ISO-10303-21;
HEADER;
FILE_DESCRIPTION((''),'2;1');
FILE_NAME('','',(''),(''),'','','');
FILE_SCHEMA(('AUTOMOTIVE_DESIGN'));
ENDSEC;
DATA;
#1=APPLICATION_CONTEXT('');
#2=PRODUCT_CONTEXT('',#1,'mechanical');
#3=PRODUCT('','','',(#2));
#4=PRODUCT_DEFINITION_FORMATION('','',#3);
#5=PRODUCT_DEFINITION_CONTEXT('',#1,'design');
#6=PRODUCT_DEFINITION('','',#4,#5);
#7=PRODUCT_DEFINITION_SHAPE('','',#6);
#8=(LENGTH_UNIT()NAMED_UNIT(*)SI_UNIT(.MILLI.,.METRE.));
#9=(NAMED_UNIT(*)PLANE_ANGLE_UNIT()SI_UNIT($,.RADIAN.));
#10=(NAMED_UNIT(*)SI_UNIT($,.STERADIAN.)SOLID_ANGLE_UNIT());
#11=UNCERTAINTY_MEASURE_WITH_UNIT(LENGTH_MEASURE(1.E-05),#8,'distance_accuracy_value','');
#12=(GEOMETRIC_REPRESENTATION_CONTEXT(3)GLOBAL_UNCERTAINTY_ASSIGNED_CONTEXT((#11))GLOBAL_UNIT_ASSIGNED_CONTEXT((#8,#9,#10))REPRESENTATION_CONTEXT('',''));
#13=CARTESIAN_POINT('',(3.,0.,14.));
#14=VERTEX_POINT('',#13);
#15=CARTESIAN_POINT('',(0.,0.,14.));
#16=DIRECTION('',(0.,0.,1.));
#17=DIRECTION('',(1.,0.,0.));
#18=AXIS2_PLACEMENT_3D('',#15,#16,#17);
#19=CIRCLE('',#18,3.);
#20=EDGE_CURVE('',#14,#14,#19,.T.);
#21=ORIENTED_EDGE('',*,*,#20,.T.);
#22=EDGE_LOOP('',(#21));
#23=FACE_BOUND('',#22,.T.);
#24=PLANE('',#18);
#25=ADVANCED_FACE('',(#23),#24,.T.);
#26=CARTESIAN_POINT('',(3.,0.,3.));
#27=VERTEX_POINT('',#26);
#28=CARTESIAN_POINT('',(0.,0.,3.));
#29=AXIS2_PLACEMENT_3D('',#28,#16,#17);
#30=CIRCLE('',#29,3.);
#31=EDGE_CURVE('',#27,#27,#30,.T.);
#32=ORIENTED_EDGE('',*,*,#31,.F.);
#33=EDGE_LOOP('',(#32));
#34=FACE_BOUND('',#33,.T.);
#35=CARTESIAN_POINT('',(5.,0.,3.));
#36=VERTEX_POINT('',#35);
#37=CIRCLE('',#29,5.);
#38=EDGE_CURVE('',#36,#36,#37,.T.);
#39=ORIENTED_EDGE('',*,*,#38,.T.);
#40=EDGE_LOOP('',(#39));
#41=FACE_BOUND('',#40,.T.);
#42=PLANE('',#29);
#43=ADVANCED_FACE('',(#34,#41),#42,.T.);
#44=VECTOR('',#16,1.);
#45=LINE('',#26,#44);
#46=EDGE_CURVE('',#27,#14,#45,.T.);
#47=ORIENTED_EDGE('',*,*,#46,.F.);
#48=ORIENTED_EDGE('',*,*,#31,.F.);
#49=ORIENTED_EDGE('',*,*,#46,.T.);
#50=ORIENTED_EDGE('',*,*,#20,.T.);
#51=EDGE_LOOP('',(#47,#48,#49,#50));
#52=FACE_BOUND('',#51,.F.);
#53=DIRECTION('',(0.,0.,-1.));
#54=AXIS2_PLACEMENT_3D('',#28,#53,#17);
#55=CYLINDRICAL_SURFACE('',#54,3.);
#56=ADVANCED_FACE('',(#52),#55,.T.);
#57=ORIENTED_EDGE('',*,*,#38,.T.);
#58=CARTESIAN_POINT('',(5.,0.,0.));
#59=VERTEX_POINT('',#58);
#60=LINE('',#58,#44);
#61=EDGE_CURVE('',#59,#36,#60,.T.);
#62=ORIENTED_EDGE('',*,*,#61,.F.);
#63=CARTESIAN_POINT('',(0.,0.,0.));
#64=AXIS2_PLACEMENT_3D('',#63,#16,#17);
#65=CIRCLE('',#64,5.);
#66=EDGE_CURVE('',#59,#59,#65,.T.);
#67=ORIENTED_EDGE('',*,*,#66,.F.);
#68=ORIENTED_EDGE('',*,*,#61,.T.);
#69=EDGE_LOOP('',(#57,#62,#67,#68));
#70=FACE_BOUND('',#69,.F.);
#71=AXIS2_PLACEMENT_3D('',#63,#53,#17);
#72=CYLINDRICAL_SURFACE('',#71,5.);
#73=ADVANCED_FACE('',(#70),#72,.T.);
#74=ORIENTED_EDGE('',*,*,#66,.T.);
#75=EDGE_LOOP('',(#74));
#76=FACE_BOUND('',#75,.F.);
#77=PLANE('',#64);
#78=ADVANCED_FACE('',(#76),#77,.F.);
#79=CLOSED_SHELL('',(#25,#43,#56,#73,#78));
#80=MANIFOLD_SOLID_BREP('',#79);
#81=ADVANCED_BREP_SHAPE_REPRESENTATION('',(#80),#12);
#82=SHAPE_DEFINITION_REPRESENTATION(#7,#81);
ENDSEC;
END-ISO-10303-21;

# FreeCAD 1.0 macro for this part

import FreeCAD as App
import Part
import Sketcher

V = App.Vector

doc = App.newDocument("Part")
body = doc.addObject("PartDesign::Body", "Body")

# Sketch on XY plane
sketch1 = doc.addObject("Sketcher::SketchObject", "Sketch")
body.addObject(sketch1)
sketch1.AttachmentSupport = (doc.XY_Plane, [""])
sketch1.MapMode = "FlatFace"
sketch1.addGeometry(Part.Circle(V(0, 0, 0), V(0, 0, 1), 5), False)
sketch1.addConstraint(Sketcher.Constraint("Coincident", 0, 3, -1, 1))
sketch1.addConstraint(Sketcher.Constraint("Diameter", 0, 10.0))
pad1 = doc.addObject("PartDesign::Pad", "Pad")
body.addObject(pad1)
pad1.Profile = sketch1
pad1.Length = 3

# Sketch on XY plane
sketch2 = doc.addObject("Sketcher::SketchObject", "Sketch001")
body.addObject(sketch2)
sketch2.AttachmentSupport = (doc.XY_Plane, [""])
sketch2.MapMode = "FlatFace"
sketch2.AttachmentOffset = App.Placement(V(0, 0, 3), App.Rotation())
sketch2.addGeometry(Part.Circle(V(0, 0, 0), V(0, 0, 1), 3), False)
sketch2.addConstraint(Sketcher.Constraint("Coincident", 0, 3, -1, 1))
sketch2.addConstraint(Sketcher.Constraint("Diameter", 0, 6.0))
pad2 = doc.addObject("PartDesign::Pad", "Pad001")
body.addObject(pad2)
pad2.Profile = sketch2
pad2.Length = 11

doc.recompute()
